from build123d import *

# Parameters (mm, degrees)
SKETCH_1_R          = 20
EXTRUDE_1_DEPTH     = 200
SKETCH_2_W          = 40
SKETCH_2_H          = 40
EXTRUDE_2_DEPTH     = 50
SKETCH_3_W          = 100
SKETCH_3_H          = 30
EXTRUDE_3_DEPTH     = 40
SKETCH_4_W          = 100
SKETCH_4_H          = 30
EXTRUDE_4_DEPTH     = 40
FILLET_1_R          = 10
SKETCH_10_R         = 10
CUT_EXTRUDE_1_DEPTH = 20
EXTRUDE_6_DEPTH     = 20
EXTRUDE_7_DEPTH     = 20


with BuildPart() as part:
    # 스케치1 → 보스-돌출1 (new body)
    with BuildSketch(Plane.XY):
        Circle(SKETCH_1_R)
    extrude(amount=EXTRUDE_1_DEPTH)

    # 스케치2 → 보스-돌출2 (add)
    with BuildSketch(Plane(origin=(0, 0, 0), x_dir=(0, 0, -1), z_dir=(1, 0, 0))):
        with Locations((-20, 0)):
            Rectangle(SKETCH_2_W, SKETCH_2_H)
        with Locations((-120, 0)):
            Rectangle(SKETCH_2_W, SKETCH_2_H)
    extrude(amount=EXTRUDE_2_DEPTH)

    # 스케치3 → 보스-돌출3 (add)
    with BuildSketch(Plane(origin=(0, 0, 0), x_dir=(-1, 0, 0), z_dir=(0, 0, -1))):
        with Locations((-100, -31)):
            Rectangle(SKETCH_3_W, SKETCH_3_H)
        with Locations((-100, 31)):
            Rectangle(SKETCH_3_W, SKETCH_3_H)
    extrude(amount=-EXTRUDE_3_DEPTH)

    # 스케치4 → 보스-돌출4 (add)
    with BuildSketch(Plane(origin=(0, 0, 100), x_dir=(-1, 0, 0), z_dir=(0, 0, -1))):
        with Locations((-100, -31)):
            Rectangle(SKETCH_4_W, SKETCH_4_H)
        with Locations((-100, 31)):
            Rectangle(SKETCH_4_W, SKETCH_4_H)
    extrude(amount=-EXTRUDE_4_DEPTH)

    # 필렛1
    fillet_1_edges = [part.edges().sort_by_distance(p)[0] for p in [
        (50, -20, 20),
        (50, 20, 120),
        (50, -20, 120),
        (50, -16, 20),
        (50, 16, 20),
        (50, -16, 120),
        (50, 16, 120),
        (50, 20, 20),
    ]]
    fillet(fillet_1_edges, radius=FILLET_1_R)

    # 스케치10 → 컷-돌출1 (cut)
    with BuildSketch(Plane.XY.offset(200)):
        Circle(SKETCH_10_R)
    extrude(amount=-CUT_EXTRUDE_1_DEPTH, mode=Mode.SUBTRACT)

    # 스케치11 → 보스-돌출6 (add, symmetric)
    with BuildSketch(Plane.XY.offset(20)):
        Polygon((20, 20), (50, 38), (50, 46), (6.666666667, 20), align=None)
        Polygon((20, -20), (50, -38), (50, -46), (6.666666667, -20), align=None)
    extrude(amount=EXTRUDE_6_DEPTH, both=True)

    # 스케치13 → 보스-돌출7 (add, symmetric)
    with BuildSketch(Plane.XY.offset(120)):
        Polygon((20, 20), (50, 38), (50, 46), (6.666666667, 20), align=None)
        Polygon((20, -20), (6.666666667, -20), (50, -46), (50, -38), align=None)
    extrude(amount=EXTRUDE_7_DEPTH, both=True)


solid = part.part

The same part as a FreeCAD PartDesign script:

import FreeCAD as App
import Part
import Sketcher
from FreeCAD import Vector
Q = App.Units.Quantity


def edges_at(feature, points):
    """Names of the edges that pass closest to the given points."""
    edges = feature.Shape.Edges
    near = lambda p: min(range(len(edges)), key=lambda i: edges[i].distToShape(Part.Vertex(*p))[0])
    return sorted({f"Edge{near(p) + 1}" for p in points})


def add_polygon(sketch, points):
    """Adds a closed chain of lines whose ends are joined by coincident constraints."""
    first, n = sketch.GeometryCount, len(points)
    for a, b in zip(points, points[1:] + points[:1]):
        sketch.addGeometry(Part.LineSegment(App.Vector(*a, 0), App.Vector(*b, 0)), False)
    for i in range(n):
        sketch.addConstraint(Sketcher.Constraint("Coincident", first + i, 2, first + (i + 1) % n, 1))

doc = App.newDocument("Part")
body = doc.addObject("PartDesign::Body", "Body")

# Sketch on XY plane
sketch1 = doc.addObject("Sketcher::SketchObject", "Sketch")
body.addObject(sketch1)
sketch1.AttachmentSupport = (doc.XY_Plane, [""])
sketch1.MapMode = "FlatFace"
sketch1.addGeometry(Part.Circle(Vector(0, 0, 0), Vector(0, 0, 1), 20), False)
sketch1.addConstraint([
    Sketcher.Constraint("Coincident", 0, 3, -1, 1),
    Sketcher.Constraint("Diameter", 0, Q("40 mm")),
])
pad1 = doc.addObject("PartDesign::Pad", "Pad")
body.addObject(pad1)
pad1.Profile = sketch1
pad1.Length = 200

# Sketch on YZ plane
sketch2 = doc.addObject("Sketcher::SketchObject", "Sketch001")
body.addObject(sketch2)
sketch2.AttachmentSupport = (doc.YZ_Plane, [""])
sketch2.MapMode = "FlatFace"
add_polygon(sketch2, [(20, 40), (-20, 40), (-20, 0), (20, 0)])  # lines 0-3
add_polygon(sketch2, [(20, 140), (-20, 140), (-20, 100), (20, 100)])  # lines 4-7
sketch2.addConstraint([
    Sketcher.Constraint("Horizontal", 0),
    Sketcher.Constraint("Vertical", 1),
    Sketcher.Constraint("Horizontal", 2),
    Sketcher.Constraint("Vertical", 3),
    Sketcher.Constraint("Horizontal", 4),
    Sketcher.Constraint("Vertical", 5),
    Sketcher.Constraint("Horizontal", 6),
    Sketcher.Constraint("Vertical", 7),
    Sketcher.Constraint("Symmetric", 1, 2, 2, 2, -1, 1),
    Sketcher.Constraint("Vertical", 1, 2, 4, 2),
    Sketcher.Constraint("Vertical", 3, 2, 6, 2),
    Sketcher.Constraint("Equal", 6, 1),
    Sketcher.Constraint("Equal", 3, 5),
    Sketcher.Constraint("DistanceX", 0, 2, 0, 1, Q("40 mm")),
    Sketcher.Constraint("DistanceY", -1, 1, 4, 2, Q("140 mm")),
])
pad2 = doc.addObject("PartDesign::Pad", "Pad001")
body.addObject(pad2)
pad2.Profile = sketch2
pad2.Length = 50

# Sketch on XY plane
sketch3 = doc.addObject("Sketcher::SketchObject", "Sketch002")
body.addObject(sketch3)
sketch3.AttachmentSupport = (doc.XY_Plane, [""])
sketch3.MapMode = "FlatFace"
add_polygon(sketch3, [(150, -16), (150, -46), (50, -46), (50, -16)])  # lines 0-3
add_polygon(sketch3, [(150, 46), (150, 16), (50, 16), (50, 46)])  # lines 4-7
sketch3.addConstraint([
    Sketcher.Constraint("Vertical", 0),
    Sketcher.Constraint("Horizontal", 1),
    Sketcher.Constraint("Vertical", 2),
    Sketcher.Constraint("Horizontal", 3),
    Sketcher.Constraint("Vertical", 4),
    Sketcher.Constraint("Horizontal", 5),
    Sketcher.Constraint("Vertical", 6),
    Sketcher.Constraint("Horizontal", 7),
    Sketcher.Constraint("Symmetric", 3, 2, 4, 2, -1),
    Sketcher.Constraint("Symmetric", 1, 2, 6, 2, -1),
    Sketcher.Constraint("DistanceX", 1, 2, 1, 1, Q("100 mm")),
    Sketcher.Constraint("DistanceY", 0, 2, 0, 1, Q("30 mm")),
    Sketcher.Constraint("DistanceX", -1, 1, 0, 2, Q("150 mm")),
    Sketcher.Constraint("DistanceY", 0, 2, -1, 1, Q("46 mm")),
])
pad3 = doc.addObject("PartDesign::Pad", "Pad002")
body.addObject(pad3)
pad3.Profile = sketch3
pad3.Length = 40

# Sketch on XY plane
sketch4 = doc.addObject("Sketcher::SketchObject", "Sketch003")
body.addObject(sketch4)
sketch4.AttachmentSupport = (doc.XY_Plane, [""])
sketch4.MapMode = "FlatFace"
sketch4.AttachmentOffset = App.Placement(Vector(0, 0, 100), App.Rotation())
add_polygon(sketch4, [(150, -16), (150, -46), (50, -46), (50, -16)])  # lines 0-3
add_polygon(sketch4, [(150, 46), (150, 16), (50, 16), (50, 46)])  # lines 4-7
sketch4.addConstraint([
    Sketcher.Constraint("Vertical", 0),
    Sketcher.Constraint("Horizontal", 1),
    Sketcher.Constraint("Vertical", 2),
    Sketcher.Constraint("Horizontal", 3),
    Sketcher.Constraint("Vertical", 4),
    Sketcher.Constraint("Horizontal", 5),
    Sketcher.Constraint("Vertical", 6),
    Sketcher.Constraint("Horizontal", 7),
    Sketcher.Constraint("Symmetric", 3, 2, 4, 2, -1),
    Sketcher.Constraint("Symmetric", 1, 2, 6, 2, -1),
    Sketcher.Constraint("DistanceX", 1, 2, 1, 1, Q("100 mm")),
    Sketcher.Constraint("DistanceY", 0, 2, 0, 1, Q("30 mm")),
    Sketcher.Constraint("DistanceX", -1, 1, 0, 2, Q("150 mm")),
    Sketcher.Constraint("DistanceY", 0, 2, -1, 1, Q("46 mm")),
])
pad4 = doc.addObject("PartDesign::Pad", "Pad003")
body.addObject(pad4)
pad4.Profile = sketch4
pad4.Length = 40
doc.recompute()

fillet = doc.addObject("PartDesign::Fillet", "Fillet")
body.addObject(fillet)
fillet.Base = (pad4, edges_at(pad4, [
    (50, -20, 20),
    (50, 20, 120),
    (50, -20, 120),
    (50, -16, 20),
    (50, 16, 20),
    (50, -16, 120),
    (50, 16, 120),
    (50, 20, 20),
]))
fillet.Radius = 10

# Sketch on XY plane
sketch5 = doc.addObject("Sketcher::SketchObject", "Sketch004")
body.addObject(sketch5)
sketch5.AttachmentSupport = (doc.XY_Plane, [""])
sketch5.MapMode = "FlatFace"
sketch5.AttachmentOffset = App.Placement(Vector(0, 0, 200), App.Rotation())
sketch5.addGeometry(Part.Circle(Vector(0, 0, 0), Vector(0, 0, 1), 10), False)
sketch5.addConstraint([
    Sketcher.Constraint("Coincident", 0, 3, -1, 1),
    Sketcher.Constraint("Diameter", 0, Q("20 mm")),
])
pocket1 = doc.addObject("PartDesign::Pocket", "Pocket")
body.addObject(pocket1)
pocket1.Profile = sketch5
pocket1.Length = 20

# Sketch on XY plane
sketch6 = doc.addObject("Sketcher::SketchObject", "Sketch005")
body.addObject(sketch6)
sketch6.AttachmentSupport = (doc.XY_Plane, [""])
sketch6.MapMode = "FlatFace"
sketch6.AttachmentOffset = App.Placement(Vector(0, 0, 20), App.Rotation())
add_polygon(sketch6, [(20, 20), (50, 38), (50, 46), (7, 20)])  # lines 0-3
add_polygon(sketch6, [(50, -38), (20, -20), (7, -20), (50, -46)])  # lines 4-7
sketch6.addConstraint([
    Sketcher.Constraint("Vertical", 1),
    Sketcher.Constraint("Horizontal", 3),
    Sketcher.Constraint("Horizontal", 5),
    Sketcher.Constraint("Vertical", 7),
    Sketcher.Constraint("Symmetric", 3, 2, 4, 2, -1),
    Sketcher.Constraint("Symmetric", 1, 2, 6, 2, -1),
    Sketcher.Constraint("Parallel", 0, 2),
    Sketcher.Constraint("Parallel", 4, 6),
    Sketcher.Constraint("Vertical", 2, 2, 5, 2),
    Sketcher.Constraint("DistanceY", 1, 1, 1, 2, Q("8 mm")),
    Sketcher.Constraint("DistanceX", -1, 1, 0, 2, Q("50 mm")),
    Sketcher.Constraint("DistanceY", -1, 1, 0, 2, Q("38 mm")),
    Sketcher.Constraint("DistanceY", -1, 1, 2, 2, Q("20 mm")),
    Sketcher.Constraint("DistanceX", -1, 1, 3, 2, Q("20 mm")),
])
pad5 = doc.addObject("PartDesign::Pad", "Pad004")
body.addObject(pad5)
pad5.Profile = sketch6
pad5.Length = 40
pad5.Midplane = True

# Sketch on XY plane
sketch7 = doc.addObject("Sketcher::SketchObject", "Sketch006")
body.addObject(sketch7)
sketch7.AttachmentSupport = (doc.XY_Plane, [""])
sketch7.MapMode = "FlatFace"
sketch7.AttachmentOffset = App.Placement(Vector(0, 0, 120), App.Rotation())
add_polygon(sketch7, [(20, 20), (50, 38), (50, 46), (7, 20)])  # lines 0-3
add_polygon(sketch7, [(20, -20), (7, -20), (50, -46), (50, -38)])  # lines 4-7
sketch7.addConstraint([
    Sketcher.Constraint("Vertical", 1),
    Sketcher.Constraint("Horizontal", 3),
    Sketcher.Constraint("Horizontal", 4),
    Sketcher.Constraint("Vertical", 6),
    Sketcher.Constraint("Symmetric", 2, 2, 4, 2, -1),
    Sketcher.Constraint("Symmetric", 1, 2, 5, 2, -1),
    Sketcher.Constraint("Parallel", 0, 2),
    Sketcher.Constraint("Parallel", 5, 7),
    Sketcher.Constraint("Vertical", 3, 2, 7, 2),
    Sketcher.Constraint("DistanceY", 1, 1, 1, 2, Q("8 mm")),
    Sketcher.Constraint("DistanceX", -1, 1, 0, 2, Q("50 mm")),
    Sketcher.Constraint("DistanceY", -1, 1, 0, 2, Q("38 mm")),
    Sketcher.Constraint("DistanceY", -1, 1, 2, 2, Q("20 mm")),
    Sketcher.Constraint("DistanceX", -1, 1, 3, 2, Q("20 mm")),
])
pad6 = doc.addObject("PartDesign::Pad", "Pad005")
body.addObject(pad6)
pad6.Profile = sketch7
pad6.Length = 40
pad6.Midplane = True

doc.recompute()
